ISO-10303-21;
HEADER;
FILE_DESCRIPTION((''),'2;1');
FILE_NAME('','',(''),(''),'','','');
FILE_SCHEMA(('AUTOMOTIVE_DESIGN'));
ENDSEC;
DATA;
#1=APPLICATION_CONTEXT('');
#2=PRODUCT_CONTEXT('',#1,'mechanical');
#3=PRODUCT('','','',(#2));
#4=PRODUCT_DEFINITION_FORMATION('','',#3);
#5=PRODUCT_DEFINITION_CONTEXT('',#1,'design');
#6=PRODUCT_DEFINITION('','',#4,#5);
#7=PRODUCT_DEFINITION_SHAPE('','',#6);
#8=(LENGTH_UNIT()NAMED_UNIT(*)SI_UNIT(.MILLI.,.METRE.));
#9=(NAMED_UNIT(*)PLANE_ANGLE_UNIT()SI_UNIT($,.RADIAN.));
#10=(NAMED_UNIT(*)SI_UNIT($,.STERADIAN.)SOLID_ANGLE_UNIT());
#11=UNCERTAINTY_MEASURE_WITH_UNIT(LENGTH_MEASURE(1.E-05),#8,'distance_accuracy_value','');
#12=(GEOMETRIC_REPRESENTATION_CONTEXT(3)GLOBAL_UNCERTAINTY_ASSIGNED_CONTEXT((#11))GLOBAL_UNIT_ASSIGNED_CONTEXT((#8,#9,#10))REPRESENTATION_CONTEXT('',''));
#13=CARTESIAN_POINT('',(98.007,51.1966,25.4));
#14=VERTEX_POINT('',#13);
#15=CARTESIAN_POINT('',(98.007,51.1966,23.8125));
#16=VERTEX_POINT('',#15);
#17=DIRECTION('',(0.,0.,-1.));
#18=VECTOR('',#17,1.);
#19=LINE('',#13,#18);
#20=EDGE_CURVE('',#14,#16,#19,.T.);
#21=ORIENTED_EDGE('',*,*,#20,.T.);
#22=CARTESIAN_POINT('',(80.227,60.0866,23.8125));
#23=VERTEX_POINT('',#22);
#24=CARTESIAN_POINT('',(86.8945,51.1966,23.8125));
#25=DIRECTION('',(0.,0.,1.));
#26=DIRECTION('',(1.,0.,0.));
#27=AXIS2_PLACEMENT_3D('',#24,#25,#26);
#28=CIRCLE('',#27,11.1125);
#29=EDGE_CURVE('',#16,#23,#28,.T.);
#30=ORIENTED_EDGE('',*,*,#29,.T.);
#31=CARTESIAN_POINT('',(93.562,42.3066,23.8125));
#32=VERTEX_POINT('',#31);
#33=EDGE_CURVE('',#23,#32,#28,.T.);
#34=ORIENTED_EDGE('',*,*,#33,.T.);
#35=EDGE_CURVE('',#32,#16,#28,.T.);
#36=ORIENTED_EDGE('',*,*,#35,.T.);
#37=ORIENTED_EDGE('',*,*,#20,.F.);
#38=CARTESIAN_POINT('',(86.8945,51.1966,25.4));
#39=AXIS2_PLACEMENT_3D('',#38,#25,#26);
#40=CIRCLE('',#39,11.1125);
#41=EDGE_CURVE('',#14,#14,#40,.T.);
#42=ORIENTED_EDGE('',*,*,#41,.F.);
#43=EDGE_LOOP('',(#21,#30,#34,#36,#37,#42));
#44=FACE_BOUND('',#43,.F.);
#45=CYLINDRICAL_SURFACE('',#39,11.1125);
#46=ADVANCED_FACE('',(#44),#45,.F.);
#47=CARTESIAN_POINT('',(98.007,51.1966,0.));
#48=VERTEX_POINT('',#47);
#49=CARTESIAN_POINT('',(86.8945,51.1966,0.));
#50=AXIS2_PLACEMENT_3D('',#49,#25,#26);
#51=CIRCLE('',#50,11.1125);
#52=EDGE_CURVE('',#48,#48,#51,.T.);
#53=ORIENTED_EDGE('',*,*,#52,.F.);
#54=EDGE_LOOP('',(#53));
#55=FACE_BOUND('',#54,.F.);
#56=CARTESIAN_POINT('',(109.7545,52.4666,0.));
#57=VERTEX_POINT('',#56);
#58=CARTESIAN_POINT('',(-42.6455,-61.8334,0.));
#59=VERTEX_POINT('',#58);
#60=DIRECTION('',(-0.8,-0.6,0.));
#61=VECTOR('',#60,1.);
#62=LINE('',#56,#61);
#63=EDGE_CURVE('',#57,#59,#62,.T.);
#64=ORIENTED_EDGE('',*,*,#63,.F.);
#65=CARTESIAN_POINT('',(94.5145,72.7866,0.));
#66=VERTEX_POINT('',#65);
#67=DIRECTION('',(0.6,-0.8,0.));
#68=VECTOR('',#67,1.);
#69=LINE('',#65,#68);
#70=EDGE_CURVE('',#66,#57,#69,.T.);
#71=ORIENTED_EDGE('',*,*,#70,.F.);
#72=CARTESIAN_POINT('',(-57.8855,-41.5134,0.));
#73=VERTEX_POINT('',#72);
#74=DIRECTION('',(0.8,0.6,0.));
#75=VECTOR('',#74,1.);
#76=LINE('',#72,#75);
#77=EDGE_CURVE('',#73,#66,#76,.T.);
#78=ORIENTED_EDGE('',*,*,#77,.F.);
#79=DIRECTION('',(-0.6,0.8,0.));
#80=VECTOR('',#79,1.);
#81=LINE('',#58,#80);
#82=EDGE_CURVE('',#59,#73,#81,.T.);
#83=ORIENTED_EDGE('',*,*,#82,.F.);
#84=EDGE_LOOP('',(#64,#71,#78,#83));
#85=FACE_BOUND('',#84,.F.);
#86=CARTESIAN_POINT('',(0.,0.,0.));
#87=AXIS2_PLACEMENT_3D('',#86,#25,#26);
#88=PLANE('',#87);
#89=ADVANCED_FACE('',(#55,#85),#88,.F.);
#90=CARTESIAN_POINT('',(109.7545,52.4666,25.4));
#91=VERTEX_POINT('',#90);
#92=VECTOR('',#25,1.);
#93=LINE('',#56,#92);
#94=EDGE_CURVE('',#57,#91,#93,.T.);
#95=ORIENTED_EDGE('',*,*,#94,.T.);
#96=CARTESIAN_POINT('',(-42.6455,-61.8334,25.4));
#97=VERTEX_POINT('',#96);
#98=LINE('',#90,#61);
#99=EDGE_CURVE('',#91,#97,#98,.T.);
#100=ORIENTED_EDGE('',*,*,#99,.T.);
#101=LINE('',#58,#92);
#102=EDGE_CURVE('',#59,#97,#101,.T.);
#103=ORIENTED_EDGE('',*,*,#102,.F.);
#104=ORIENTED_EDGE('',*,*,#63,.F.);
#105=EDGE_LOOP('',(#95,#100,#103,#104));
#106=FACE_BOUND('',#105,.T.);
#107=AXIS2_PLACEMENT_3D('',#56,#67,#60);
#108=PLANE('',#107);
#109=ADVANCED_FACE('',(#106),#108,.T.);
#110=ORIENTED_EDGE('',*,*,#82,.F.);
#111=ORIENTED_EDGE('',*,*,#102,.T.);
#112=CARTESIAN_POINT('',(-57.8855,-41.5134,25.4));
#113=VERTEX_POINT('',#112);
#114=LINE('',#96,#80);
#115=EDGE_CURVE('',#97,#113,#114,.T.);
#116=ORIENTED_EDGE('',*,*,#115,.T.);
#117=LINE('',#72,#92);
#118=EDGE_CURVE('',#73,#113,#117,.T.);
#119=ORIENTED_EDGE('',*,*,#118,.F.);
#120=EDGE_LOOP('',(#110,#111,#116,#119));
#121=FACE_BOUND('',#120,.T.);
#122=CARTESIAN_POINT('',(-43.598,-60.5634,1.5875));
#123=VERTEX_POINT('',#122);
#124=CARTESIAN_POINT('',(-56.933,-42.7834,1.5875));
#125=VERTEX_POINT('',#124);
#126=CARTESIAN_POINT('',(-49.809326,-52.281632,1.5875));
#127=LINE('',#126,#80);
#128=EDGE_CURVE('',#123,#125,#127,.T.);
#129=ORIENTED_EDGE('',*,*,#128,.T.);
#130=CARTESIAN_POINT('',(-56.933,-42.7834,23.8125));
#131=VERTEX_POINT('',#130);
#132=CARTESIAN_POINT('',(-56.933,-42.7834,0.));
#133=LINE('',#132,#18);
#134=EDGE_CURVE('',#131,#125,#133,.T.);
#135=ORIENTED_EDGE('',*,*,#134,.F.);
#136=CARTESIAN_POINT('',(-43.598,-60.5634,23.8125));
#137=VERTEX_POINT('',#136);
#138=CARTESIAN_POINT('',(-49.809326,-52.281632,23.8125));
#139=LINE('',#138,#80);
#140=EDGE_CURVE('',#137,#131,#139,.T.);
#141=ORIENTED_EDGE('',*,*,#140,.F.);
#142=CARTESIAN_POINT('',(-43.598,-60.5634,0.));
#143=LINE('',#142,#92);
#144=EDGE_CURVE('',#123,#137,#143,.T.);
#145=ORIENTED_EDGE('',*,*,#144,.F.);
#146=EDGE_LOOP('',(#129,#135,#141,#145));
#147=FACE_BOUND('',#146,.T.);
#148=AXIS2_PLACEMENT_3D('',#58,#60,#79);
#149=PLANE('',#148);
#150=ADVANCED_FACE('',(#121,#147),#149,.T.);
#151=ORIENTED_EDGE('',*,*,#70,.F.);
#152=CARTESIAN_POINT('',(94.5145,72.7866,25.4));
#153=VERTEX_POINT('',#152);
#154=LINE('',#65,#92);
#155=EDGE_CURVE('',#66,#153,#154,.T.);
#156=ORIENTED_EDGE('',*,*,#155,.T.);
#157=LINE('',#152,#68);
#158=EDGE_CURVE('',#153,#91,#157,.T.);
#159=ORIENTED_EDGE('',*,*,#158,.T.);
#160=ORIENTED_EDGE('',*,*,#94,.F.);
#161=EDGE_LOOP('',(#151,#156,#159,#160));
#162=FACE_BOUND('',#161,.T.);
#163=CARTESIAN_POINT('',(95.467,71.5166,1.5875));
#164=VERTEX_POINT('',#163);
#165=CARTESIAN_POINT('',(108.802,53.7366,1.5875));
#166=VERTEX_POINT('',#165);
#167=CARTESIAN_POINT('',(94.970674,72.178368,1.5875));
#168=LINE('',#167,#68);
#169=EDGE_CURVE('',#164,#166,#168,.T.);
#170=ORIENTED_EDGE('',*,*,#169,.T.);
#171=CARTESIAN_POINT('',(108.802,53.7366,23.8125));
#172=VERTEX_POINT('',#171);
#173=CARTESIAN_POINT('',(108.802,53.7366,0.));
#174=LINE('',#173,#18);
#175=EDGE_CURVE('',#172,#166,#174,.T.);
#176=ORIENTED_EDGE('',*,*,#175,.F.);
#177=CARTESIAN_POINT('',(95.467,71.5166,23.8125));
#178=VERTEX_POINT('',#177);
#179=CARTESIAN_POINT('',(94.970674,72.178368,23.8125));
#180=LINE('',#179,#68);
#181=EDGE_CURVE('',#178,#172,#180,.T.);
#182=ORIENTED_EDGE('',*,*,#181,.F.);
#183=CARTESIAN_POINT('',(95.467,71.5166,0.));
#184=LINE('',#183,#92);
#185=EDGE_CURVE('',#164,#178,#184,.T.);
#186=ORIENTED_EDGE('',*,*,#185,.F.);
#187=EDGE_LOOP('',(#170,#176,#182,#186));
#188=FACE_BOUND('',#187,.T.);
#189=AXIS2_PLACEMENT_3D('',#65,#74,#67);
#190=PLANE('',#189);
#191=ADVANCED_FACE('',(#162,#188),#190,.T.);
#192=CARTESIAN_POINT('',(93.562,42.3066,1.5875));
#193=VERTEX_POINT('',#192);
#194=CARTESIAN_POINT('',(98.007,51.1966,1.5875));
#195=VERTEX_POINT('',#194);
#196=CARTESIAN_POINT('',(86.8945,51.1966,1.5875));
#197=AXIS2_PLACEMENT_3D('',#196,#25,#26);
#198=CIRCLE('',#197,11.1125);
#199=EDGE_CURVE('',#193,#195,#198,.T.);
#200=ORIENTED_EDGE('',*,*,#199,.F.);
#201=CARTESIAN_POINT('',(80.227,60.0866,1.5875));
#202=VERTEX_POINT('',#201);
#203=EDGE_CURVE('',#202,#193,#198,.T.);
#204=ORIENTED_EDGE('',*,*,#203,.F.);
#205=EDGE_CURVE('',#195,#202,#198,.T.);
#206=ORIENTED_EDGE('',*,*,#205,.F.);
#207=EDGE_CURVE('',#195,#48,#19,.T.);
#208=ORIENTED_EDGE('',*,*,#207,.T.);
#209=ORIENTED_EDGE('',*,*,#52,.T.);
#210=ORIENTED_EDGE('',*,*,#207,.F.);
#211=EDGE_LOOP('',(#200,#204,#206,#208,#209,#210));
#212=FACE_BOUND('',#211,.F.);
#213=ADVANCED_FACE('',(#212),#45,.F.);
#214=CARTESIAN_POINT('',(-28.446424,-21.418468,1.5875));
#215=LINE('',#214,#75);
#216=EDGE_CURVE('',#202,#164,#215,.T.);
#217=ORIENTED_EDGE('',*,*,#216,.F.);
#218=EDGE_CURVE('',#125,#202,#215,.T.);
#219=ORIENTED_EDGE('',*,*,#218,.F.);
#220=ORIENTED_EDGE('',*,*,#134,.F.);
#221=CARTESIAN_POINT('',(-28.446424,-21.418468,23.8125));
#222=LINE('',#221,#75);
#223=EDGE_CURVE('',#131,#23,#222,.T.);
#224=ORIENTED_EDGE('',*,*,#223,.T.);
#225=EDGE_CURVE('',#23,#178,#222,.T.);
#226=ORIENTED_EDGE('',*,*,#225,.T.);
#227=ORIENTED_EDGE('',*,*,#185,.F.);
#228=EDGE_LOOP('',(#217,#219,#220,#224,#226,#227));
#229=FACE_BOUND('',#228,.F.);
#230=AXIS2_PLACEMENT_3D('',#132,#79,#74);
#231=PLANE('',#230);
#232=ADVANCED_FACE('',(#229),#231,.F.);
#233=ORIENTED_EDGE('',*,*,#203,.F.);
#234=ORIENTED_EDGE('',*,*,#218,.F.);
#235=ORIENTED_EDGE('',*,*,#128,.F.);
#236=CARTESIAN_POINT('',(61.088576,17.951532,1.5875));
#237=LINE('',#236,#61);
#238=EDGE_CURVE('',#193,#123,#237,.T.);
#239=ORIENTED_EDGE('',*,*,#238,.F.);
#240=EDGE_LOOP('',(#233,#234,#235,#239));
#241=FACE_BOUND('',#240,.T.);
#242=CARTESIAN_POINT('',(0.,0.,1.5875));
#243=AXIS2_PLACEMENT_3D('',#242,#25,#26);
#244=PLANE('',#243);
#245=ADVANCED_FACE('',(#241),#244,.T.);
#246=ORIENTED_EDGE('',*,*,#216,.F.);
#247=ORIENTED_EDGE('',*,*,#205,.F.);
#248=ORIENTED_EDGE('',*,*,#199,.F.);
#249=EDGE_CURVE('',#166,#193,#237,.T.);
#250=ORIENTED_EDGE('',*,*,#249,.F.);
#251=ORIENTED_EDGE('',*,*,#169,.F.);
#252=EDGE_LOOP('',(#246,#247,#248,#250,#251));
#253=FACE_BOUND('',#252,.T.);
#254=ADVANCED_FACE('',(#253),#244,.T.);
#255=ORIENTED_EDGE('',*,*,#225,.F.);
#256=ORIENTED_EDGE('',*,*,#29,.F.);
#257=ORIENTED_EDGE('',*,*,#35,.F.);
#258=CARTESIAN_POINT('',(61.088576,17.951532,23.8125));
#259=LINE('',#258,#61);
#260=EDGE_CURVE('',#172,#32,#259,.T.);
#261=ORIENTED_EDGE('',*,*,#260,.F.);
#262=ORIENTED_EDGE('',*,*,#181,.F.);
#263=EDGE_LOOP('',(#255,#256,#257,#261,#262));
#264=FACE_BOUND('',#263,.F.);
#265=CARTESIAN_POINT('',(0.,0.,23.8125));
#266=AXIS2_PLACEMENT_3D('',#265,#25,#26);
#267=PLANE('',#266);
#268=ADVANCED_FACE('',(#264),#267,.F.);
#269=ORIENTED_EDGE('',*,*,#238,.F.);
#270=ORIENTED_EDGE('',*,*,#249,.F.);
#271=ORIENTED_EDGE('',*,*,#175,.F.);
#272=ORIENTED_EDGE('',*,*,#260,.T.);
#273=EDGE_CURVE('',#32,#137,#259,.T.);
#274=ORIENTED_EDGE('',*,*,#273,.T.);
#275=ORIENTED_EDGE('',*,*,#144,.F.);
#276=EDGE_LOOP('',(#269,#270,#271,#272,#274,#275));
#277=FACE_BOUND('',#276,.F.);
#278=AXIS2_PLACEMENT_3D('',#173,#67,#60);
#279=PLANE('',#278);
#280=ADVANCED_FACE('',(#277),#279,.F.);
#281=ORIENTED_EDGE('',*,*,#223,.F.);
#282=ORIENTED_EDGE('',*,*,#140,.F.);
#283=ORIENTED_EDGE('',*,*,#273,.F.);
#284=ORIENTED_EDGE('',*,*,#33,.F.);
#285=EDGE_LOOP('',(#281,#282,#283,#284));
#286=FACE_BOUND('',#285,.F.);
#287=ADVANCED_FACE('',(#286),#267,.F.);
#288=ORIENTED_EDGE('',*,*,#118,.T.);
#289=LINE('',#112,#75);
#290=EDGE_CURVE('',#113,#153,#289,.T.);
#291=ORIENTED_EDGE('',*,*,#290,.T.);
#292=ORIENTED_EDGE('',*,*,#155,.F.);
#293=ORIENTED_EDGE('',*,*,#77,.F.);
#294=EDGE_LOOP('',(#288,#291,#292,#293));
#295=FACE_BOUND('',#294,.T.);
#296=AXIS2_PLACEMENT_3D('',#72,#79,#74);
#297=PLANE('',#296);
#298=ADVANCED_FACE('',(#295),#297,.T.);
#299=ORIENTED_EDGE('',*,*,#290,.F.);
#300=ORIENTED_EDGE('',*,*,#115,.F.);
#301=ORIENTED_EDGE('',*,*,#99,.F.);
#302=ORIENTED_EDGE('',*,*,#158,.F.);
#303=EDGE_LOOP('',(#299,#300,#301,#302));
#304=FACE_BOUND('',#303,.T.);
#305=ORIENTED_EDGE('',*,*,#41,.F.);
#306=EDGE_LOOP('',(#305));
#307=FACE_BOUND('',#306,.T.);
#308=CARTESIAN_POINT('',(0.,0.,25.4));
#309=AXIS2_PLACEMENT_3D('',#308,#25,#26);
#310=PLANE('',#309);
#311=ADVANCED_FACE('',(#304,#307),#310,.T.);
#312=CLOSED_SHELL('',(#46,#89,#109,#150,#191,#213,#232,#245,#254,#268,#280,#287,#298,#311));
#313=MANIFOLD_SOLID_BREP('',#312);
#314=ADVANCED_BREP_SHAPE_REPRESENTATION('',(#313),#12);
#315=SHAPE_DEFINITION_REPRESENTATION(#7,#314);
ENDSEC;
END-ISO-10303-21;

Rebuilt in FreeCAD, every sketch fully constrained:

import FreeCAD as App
import Part
import Sketcher
from FreeCAD import Vector
Q = App.Units.Quantity


def faces_at(feature, points):
    """Names of the faces that lie closest to the given points."""
    faces = feature.Shape.Faces
    near = lambda p: min(range(len(faces)), key=lambda i: faces[i].distToShape(Part.Vertex(*p))[0])
    return sorted({f"Face{near(p) + 1}" for p in points})


def add_polygon(sketch, points):
    """Adds a closed chain of lines whose ends are joined by coincident constraints."""
    first, n = sketch.GeometryCount, len(points)
    for a, b in zip(points, points[1:] + points[:1]):
        sketch.addGeometry(Part.LineSegment(App.Vector(*a, 0), App.Vector(*b, 0)), False)
    for i in range(n):
        sketch.addConstraint(Sketcher.Constraint("Coincident", first + i, 2, first + (i + 1) % n, 1))

doc = App.newDocument("Part")
params = doc.addObject("Spreadsheet::Sheet", "Params")
for row, (alias, value) in enumerate([
    ("sketch1_length", "1 in"),
    ("sketch1_length2", "7.5 in"),
    ("pad1_length", "1 in"),
    ("thickness_wall", "0.0625 in"),
    ("sketch2_diameter", "0.875 in"),
], start=1):
    params.set(f"A{row}", alias)
    params.set(f"B{row}", "=" + value)
    params.setAlias(f"B{row}", alias)

body = doc.addObject("PartDesign::Body", "Body")

# Sketch on XY plane
sketch1 = body.newObject("Sketcher::SketchObject", "Sketch")
sketch1.AttachmentSupport = (doc.getObject("XY_Plane"), [""])
sketch1.MapMode = "FlatFace"
add_polygon(sketch1, [(-58, -42), (-43, -62), (110, 52), (95, 73)])  # lines 0-3
sketch1.addConstraint([
    Sketcher.Constraint("Perpendicular", 0, 1),
    Sketcher.Constraint("Perpendicular", 1, 2),
    Sketcher.Constraint("Perpendicular", 2, 3),
    Sketcher.Constraint("Distance", 0, Q("1 in")),
    Sketcher.Constraint("Distance", 1, Q("7.5 in")),
    Sketcher.Constraint("DistanceX", 0, 2, 1, 2, Q("6 in")),
    Sketcher.Constraint("DistanceX", 0, 2, -1, 1, Q("42.6455 mm")),
    Sketcher.Constraint("DistanceY", 0, 2, -1, 1, Q("61.8334 mm")),
])
sketch1.setExpression("Constraints[7]", "Params.sketch1_length")
sketch1.setExpression("Constraints[8]", "Params.sketch1_length2")
pad1 = body.newObject("PartDesign::Pad", "Pad")
pad1.Profile = sketch1
pad1.setExpression("Length", "Params.pad1_length")
doc.recompute()

thickness = body.newObject("PartDesign::Thickness", "Thickness")
thickness.Base = (pad1, faces_at(pad1, [(-47.725, -55.06, 8.467), (99.594, 66.013, 16.933)]))
thickness.setExpression("Value", "Params.thickness_wall")
thickness.Reversed = True
thickness.Join = "Intersection"

# Sketch on XY plane
sketch2 = body.newObject("Sketcher::SketchObject", "Sketch001")
sketch2.AttachmentSupport = (doc.getObject("XY_Plane"), [""])
sketch2.MapMode = "FlatFace"
sketch2.AttachmentOffset = App.Placement(Vector(0, 0, 1 * 25.4), App.Rotation())
sketch2.addGeometry(Part.Circle(Vector(87, 51, 0), Vector(0, 0, 1), 11), False)
sketch2.addConstraint([
    Sketcher.Constraint("Diameter", 0, Q("0.875 in")),
    Sketcher.Constraint("DistanceX", -1, 1, 0, 3, Q("86.8945 mm")),
    Sketcher.Constraint("DistanceY", -1, 1, 0, 3, Q("51.1966 mm")),
])
sketch2.setExpression("Constraints[0]", "Params.sketch2_diameter")
pocket1 = body.newObject("PartDesign::Pocket", "Pocket")
pocket1.Profile = sketch2
pocket1.Type = "ThroughAll"

doc.recompute()
